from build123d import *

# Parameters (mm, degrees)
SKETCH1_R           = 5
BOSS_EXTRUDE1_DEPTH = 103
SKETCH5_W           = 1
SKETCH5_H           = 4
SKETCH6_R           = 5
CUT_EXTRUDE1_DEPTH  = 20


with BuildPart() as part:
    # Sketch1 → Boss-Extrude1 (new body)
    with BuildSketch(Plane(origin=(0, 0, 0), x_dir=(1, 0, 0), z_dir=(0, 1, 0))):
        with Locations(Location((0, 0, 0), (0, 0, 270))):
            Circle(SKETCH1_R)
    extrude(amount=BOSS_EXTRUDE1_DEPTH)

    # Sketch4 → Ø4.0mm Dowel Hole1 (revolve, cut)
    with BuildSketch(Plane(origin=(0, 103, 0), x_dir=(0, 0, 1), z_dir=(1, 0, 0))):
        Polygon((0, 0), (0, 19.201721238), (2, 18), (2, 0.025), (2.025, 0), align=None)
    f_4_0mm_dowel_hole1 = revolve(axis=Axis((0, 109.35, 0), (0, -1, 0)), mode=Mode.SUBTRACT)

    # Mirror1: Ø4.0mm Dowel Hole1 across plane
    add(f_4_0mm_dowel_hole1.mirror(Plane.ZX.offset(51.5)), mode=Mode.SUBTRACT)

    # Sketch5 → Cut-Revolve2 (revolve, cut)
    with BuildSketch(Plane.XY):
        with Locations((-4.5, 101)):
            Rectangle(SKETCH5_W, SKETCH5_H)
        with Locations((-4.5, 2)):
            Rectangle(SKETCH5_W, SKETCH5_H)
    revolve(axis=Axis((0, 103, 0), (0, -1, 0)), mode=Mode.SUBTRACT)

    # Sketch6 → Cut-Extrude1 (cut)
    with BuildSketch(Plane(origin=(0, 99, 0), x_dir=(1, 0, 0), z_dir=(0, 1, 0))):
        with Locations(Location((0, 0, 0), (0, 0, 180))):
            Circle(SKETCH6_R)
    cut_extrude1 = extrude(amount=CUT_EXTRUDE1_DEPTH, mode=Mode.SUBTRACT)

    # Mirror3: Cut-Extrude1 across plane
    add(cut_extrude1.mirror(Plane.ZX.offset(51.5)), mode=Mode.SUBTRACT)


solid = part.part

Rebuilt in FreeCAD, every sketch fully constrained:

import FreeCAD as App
import Part
import Sketcher

V = App.Vector
Q = App.Units.Quantity

doc = App.newDocument("Part")
body = doc.addObject("PartDesign::Body", "Body")

sketch1 = doc.addObject("Sketcher::SketchObject", "Sketch")
body.addObject(sketch1)
sketch1.AttachmentSupport = (doc.XZ_Plane, [""])
sketch1.MapMode = "FlatFace"
sketch1.addGeometry(Part.Circle(V(0, 0, 0), V(0, 0, 1), 5), False)
sketch1.addConstraint([
    Sketcher.Constraint("Coincident", 0, 3, -1, 1),
    Sketcher.Constraint("Diameter", 0, 10.0),
])
pad1 = doc.addObject("PartDesign::Pad", "Pad")
body.addObject(pad1)
pad1.Profile = sketch1
pad1.Length = 103
pad1.Reversed = True

sketch2 = doc.addObject("Sketcher::SketchObject", "Sketch001")
body.addObject(sketch2)
sketch2.AttachmentSupport = (doc.YZ_Plane, [""])
sketch2.MapMode = "FlatFace"
sketch2.addGeometry([
    Part.LineSegment(V(83.798, 0, 0), V(103, 0, 0)),
    Part.LineSegment(V(103, 0, 0), V(103, 2.025, 0)),
    Part.LineSegment(V(103, 2.025, 0), V(102.975, 2, 0)),
    Part.LineSegment(V(102.975, 2, 0), V(85, 2, 0)),
    Part.LineSegment(V(85, 2, 0), V(83.798, 0, 0)),
], False)
sketch2.addConstraint([
    Sketcher.Constraint("Coincident", 0, 2, 1, 1),
    Sketcher.Constraint("Coincident", 1, 2, 2, 1),
    Sketcher.Constraint("Coincident", 2, 2, 3, 1),
    Sketcher.Constraint("Coincident", 3, 2, 4, 1),
    Sketcher.Constraint("Coincident", 4, 2, 0, 1),
    Sketcher.Constraint("Horizontal", 0),
    Sketcher.Constraint("Vertical", 1),
    Sketcher.Constraint("Horizontal", 3),
    Sketcher.Constraint("PointOnObject", 0, 2, -1),
    Sketcher.Constraint("Angle", 2, Q("-135 deg")),
    Sketcher.Constraint("Angle", 4, Q("-121 deg")),
    Sketcher.Constraint("DistanceX", -1, 1, 0, 2, 103.0),
    Sketcher.Constraint("DistanceY", -1, 1, 2, 2, 2.0),
    Sketcher.Constraint("DistanceX", -1, 1, 3, 2, 85.0),
    Sketcher.Constraint("DistanceX", 3, 2, 3, 1, 17.975),
])
groove = doc.addObject("PartDesign::Groove", "Groove")
body.addObject(groove)
groove.Profile = sketch2
groove.ReferenceAxis = (sketch2, ["H_Axis"])
groove.Angle = 360
doc.recompute()

datumplane = doc.addObject("PartDesign::Plane", "DatumPlane")
body.addObject(datumplane)
datumplane.AttachmentSupport = (doc.XZ_Plane, [""])
datumplane.MapMode = "FlatFace"
datumplane.AttachmentOffset = App.Placement(V(0, 0, -51.5), App.Rotation())
mirrored = doc.addObject("PartDesign::Mirrored", "Mirrored")
body.addObject(mirrored)
mirrored.Originals = [groove]
mirrored.MirrorPlane = (datumplane, [""])
body.Tip = mirrored

sketch3 = doc.addObject("Sketcher::SketchObject", "Sketch002")
body.addObject(sketch3)
sketch3.AttachmentSupport = (doc.XY_Plane, [""])
sketch3.MapMode = "FlatFace"
sketch3.addGeometry([
    Part.LineSegment(V(-5, 103, 0), V(-5, 99, 0)),
    Part.LineSegment(V(-5, 99, 0), V(-4, 99, 0)),
    Part.LineSegment(V(-4, 99, 0), V(-4, 103, 0)),
    Part.LineSegment(V(-4, 103, 0), V(-5, 103, 0)),
    Part.LineSegment(V(-5, 4, 0), V(-5, 0, 0)),
    Part.LineSegment(V(-5, 0, 0), V(-4, 0, 0)),
    Part.LineSegment(V(-4, 0, 0), V(-4, 4, 0)),
    Part.LineSegment(V(-4, 4, 0), V(-5, 4, 0)),
], False)
sketch3.addConstraint([
    Sketcher.Constraint("Coincident", 0, 2, 1, 1),
    Sketcher.Constraint("Coincident", 1, 2, 2, 1),
    Sketcher.Constraint("Coincident", 2, 2, 3, 1),
    Sketcher.Constraint("Coincident", 3, 2, 0, 1),
    Sketcher.Constraint("Coincident", 4, 2, 5, 1),
    Sketcher.Constraint("Coincident", 5, 2, 6, 1),
    Sketcher.Constraint("Coincident", 6, 2, 7, 1),
    Sketcher.Constraint("Coincident", 7, 2, 4, 1),
    Sketcher.Constraint("Vertical", 0),
    Sketcher.Constraint("Horizontal", 1),
    Sketcher.Constraint("Vertical", 2),
    Sketcher.Constraint("Horizontal", 3),
    Sketcher.Constraint("Vertical", 4),
    Sketcher.Constraint("Horizontal", 5),
    Sketcher.Constraint("Vertical", 6),
    Sketcher.Constraint("Horizontal", 7),
    Sketcher.Constraint("PointOnObject", 4, 2, -1),
    Sketcher.Constraint("Vertical", 3, 2, 4, 2),
    Sketcher.Constraint("Vertical", 2, 2, 5, 2),
    Sketcher.Constraint("Equal", 2, 4),
    Sketcher.Constraint("DistanceX", 1, 1, 1, 2, 1.0),
    Sketcher.Constraint("DistanceY", 0, 2, 0, 1, 4.0),
    Sketcher.Constraint("DistanceX", 0, 2, -1, 1, 5.0),
    Sketcher.Constraint("DistanceY", -1, 1, 0, 2, 99.0),
])
groove2 = doc.addObject("PartDesign::Groove", "Groove001")
body.addObject(groove2)
groove2.Profile = sketch3
groove2.ReferenceAxis = (sketch3, ["V_Axis"])
groove2.Angle = 360

sketch4 = doc.addObject("Sketcher::SketchObject", "Sketch003")
body.addObject(sketch4)
sketch4.AttachmentSupport = (doc.XZ_Plane, [""])
sketch4.MapMode = "FlatFace"
sketch4.AttachmentOffset = App.Placement(V(0, 0, -99), App.Rotation())
sketch4.addGeometry(Part.Circle(V(0, 0, 0), V(0, 0, 1), 5), False)
sketch4.addConstraint([
    Sketcher.Constraint("Coincident", 0, 3, -1, 1),
    Sketcher.Constraint("Diameter", 0, 10.0),
])
pocket1 = doc.addObject("PartDesign::Pocket", "Pocket")
body.addObject(pocket1)
pocket1.Profile = sketch4
pocket1.Length = 20
doc.recompute()

datumplane2 = doc.addObject("PartDesign::Plane", "DatumPlane001")
body.addObject(datumplane2)
datumplane2.AttachmentSupport = (doc.XZ_Plane, [""])
datumplane2.MapMode = "FlatFace"
datumplane2.AttachmentOffset = App.Placement(V(0, 0, -51.5), App.Rotation())
mirrored2 = doc.addObject("PartDesign::Mirrored", "Mirrored001")
body.addObject(mirrored2)
mirrored2.Originals = [pocket1]
mirrored2.MirrorPlane = (datumplane2, [""])
body.Tip = mirrored2

doc.recompute()
